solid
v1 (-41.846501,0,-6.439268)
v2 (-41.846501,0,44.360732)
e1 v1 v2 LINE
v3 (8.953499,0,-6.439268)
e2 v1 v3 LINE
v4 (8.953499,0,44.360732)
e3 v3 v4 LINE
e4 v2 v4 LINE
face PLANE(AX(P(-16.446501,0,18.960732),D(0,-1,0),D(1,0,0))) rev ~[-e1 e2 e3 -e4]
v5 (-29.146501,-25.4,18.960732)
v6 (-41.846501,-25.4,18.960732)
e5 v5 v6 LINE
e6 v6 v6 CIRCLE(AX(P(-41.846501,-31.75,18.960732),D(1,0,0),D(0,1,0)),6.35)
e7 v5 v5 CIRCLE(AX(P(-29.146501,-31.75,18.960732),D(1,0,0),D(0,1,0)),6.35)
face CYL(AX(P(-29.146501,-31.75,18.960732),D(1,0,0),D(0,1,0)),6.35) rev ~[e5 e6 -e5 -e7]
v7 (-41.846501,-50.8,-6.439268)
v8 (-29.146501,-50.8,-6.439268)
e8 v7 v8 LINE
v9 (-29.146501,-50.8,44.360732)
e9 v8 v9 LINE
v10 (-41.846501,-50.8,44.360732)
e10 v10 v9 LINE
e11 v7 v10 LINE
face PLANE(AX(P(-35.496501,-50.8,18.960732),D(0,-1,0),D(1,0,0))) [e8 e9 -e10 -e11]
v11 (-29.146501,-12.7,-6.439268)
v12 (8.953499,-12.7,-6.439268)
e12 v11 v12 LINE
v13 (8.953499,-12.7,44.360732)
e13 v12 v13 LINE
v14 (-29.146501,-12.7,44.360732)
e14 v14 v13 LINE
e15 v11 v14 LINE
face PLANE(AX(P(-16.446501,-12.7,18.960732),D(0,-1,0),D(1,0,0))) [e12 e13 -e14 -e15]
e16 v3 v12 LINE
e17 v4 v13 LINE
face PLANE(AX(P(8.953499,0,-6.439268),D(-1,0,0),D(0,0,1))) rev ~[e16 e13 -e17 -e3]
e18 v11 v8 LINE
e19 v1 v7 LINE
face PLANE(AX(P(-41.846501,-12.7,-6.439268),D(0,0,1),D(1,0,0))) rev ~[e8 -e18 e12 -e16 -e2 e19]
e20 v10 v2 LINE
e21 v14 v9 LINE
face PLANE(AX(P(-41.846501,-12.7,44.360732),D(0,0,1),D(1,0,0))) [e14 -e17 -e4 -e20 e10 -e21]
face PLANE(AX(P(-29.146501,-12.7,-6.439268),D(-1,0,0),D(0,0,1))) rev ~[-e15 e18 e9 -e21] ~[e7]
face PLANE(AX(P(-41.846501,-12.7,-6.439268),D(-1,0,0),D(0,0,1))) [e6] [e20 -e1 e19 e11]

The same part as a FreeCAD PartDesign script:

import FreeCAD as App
import Part
import Sketcher

V = App.Vector
Q = App.Units.Quantity


def add_polygon(sketch, points):
    """Adds a closed chain of lines whose ends are joined by coincident constraints."""
    first, n = sketch.GeometryCount, len(points)
    for a, b in zip(points, points[1:] + points[:1]):
        sketch.addGeometry(Part.LineSegment(App.Vector(*a, 0), App.Vector(*b, 0)), False)
    for i in range(n):
        sketch.addConstraint(Sketcher.Constraint("Coincident", first + i, 2, first + (i + 1) % n, 1))

doc = App.newDocument("Part")
params = doc.addObject("Spreadsheet::Sheet", "Params")
for row, (alias, value) in enumerate([
    ("sketch1_width", "2 in"),
    ("pad1_length", "0.5 in"),
    ("sketch2_height", "2 in"),
    ("sketch2_width", "0.5 in"),
    ("pad2_length", "1.5 in"),
    ("sketch3_diameter", "0.5 in"),
    ("pocket1_length", "1 in"),
], start=1):
    params.set(f"A{row}", alias)
    params.set(f"B{row}", "=" + value)
    params.setAlias(f"B{row}", alias)

body = doc.addObject("PartDesign::Body", "Body")

# Sketch on XZ plane
sketch1 = body.newObject("Sketcher::SketchObject", "Sketch")
sketch1.AttachmentSupport = (doc.getObject("XZ_Plane"), [""])
sketch1.MapMode = "FlatFace"
add_polygon(sketch1, [(-42, 44), (-42, -6), (9, -6), (9, 44)])  # lines 0-3
sketch1.addConstraint(Sketcher.Constraint("Vertical", 0))
sketch1.addConstraint(Sketcher.Constraint("Horizontal", 1))
sketch1.addConstraint(Sketcher.Constraint("Vertical", 2))
sketch1.addConstraint(Sketcher.Constraint("Horizontal", 3))
sketch1.addConstraint(Sketcher.Constraint("Equal", 3, 0))
sketch1.addConstraint(Sketcher.Constraint("DistanceX", 1, 1, 1, 2, Q("2 in")))
sketch1.addConstraint(Sketcher.Constraint("DistanceX", 0, 2, -1, 1, Q("1.6475 in")))
sketch1.addConstraint(Sketcher.Constraint("DistanceY", 0, 2, -1, 1, 6.439268))
sketch1.setExpression("Constraints[9]", "Params.sketch1_width")
pad1 = body.newObject("PartDesign::Pad", "Pad")
pad1.Profile = sketch1
pad1.setExpression("Length", "Params.pad1_length")

# Sketch on XZ plane
sketch2 = body.newObject("Sketcher::SketchObject", "Sketch001")
sketch2.AttachmentSupport = (doc.getObject("XZ_Plane"), [""])
sketch2.MapMode = "FlatFace"
sketch2.AttachmentOffset = App.Placement(V(0, 0, 0.5 * 25.4), App.Rotation())
add_polygon(sketch2, [(-42, 44), (-42, -6), (-29, -6), (-29, 44)])  # lines 0-3
sketch2.addConstraint(Sketcher.Constraint("Vertical", 0))
sketch2.addConstraint(Sketcher.Constraint("Horizontal", 1))
sketch2.addConstraint(Sketcher.Constraint("Vertical", 2))
sketch2.addConstraint(Sketcher.Constraint("Horizontal", 3))
sketch2.addConstraint(Sketcher.Constraint("DistanceY", 0, 2, 0, 1, Q("2 in")))
sketch2.addConstraint(Sketcher.Constraint("DistanceX", 1, 1, 1, 2, Q("0.5 in")))
sketch2.addConstraint(Sketcher.Constraint("DistanceX", 0, 2, -1, 1, Q("1.6475 in")))
sketch2.addConstraint(Sketcher.Constraint("DistanceY", 0, 2, -1, 1, 6.439268))
sketch2.setExpression("Constraints[8]", "Params.sketch2_height")
sketch2.setExpression("Constraints[9]", "Params.sketch2_width")
pad2 = body.newObject("PartDesign::Pad", "Pad001")
pad2.Profile = sketch2
pad2.setExpression("Length", "Params.pad2_length")

# Sketch on YZ plane
sketch3 = body.newObject("Sketcher::SketchObject", "Sketch002")
sketch3.AttachmentSupport = (doc.getObject("YZ_Plane"), [""])
sketch3.MapMode = "FlatFace"
sketch3.AttachmentOffset = App.Placement(V(0, 0, -1.1475 * 25.4), App.Rotation())
sketch3.addGeometry(Part.Circle(V(-32, 19, 0), V(0, 0, 1), 6), False)
sketch3.addConstraint(Sketcher.Constraint("Diameter", 0, Q("0.5 in")))
sketch3.addConstraint(Sketcher.Constraint("DistanceX", 0, 3, -1, 1, Q("1.25 in")))
sketch3.addConstraint(Sketcher.Constraint("DistanceY", -1, 1, 0, 3, 18.960732))
sketch3.setExpression("Constraints[0]", "Params.sketch3_diameter")
pocket1 = body.newObject("PartDesign::Pocket", "Pocket")
pocket1.Profile = sketch3
pocket1.setExpression("Length", "Params.pocket1_length")

doc.recompute()
